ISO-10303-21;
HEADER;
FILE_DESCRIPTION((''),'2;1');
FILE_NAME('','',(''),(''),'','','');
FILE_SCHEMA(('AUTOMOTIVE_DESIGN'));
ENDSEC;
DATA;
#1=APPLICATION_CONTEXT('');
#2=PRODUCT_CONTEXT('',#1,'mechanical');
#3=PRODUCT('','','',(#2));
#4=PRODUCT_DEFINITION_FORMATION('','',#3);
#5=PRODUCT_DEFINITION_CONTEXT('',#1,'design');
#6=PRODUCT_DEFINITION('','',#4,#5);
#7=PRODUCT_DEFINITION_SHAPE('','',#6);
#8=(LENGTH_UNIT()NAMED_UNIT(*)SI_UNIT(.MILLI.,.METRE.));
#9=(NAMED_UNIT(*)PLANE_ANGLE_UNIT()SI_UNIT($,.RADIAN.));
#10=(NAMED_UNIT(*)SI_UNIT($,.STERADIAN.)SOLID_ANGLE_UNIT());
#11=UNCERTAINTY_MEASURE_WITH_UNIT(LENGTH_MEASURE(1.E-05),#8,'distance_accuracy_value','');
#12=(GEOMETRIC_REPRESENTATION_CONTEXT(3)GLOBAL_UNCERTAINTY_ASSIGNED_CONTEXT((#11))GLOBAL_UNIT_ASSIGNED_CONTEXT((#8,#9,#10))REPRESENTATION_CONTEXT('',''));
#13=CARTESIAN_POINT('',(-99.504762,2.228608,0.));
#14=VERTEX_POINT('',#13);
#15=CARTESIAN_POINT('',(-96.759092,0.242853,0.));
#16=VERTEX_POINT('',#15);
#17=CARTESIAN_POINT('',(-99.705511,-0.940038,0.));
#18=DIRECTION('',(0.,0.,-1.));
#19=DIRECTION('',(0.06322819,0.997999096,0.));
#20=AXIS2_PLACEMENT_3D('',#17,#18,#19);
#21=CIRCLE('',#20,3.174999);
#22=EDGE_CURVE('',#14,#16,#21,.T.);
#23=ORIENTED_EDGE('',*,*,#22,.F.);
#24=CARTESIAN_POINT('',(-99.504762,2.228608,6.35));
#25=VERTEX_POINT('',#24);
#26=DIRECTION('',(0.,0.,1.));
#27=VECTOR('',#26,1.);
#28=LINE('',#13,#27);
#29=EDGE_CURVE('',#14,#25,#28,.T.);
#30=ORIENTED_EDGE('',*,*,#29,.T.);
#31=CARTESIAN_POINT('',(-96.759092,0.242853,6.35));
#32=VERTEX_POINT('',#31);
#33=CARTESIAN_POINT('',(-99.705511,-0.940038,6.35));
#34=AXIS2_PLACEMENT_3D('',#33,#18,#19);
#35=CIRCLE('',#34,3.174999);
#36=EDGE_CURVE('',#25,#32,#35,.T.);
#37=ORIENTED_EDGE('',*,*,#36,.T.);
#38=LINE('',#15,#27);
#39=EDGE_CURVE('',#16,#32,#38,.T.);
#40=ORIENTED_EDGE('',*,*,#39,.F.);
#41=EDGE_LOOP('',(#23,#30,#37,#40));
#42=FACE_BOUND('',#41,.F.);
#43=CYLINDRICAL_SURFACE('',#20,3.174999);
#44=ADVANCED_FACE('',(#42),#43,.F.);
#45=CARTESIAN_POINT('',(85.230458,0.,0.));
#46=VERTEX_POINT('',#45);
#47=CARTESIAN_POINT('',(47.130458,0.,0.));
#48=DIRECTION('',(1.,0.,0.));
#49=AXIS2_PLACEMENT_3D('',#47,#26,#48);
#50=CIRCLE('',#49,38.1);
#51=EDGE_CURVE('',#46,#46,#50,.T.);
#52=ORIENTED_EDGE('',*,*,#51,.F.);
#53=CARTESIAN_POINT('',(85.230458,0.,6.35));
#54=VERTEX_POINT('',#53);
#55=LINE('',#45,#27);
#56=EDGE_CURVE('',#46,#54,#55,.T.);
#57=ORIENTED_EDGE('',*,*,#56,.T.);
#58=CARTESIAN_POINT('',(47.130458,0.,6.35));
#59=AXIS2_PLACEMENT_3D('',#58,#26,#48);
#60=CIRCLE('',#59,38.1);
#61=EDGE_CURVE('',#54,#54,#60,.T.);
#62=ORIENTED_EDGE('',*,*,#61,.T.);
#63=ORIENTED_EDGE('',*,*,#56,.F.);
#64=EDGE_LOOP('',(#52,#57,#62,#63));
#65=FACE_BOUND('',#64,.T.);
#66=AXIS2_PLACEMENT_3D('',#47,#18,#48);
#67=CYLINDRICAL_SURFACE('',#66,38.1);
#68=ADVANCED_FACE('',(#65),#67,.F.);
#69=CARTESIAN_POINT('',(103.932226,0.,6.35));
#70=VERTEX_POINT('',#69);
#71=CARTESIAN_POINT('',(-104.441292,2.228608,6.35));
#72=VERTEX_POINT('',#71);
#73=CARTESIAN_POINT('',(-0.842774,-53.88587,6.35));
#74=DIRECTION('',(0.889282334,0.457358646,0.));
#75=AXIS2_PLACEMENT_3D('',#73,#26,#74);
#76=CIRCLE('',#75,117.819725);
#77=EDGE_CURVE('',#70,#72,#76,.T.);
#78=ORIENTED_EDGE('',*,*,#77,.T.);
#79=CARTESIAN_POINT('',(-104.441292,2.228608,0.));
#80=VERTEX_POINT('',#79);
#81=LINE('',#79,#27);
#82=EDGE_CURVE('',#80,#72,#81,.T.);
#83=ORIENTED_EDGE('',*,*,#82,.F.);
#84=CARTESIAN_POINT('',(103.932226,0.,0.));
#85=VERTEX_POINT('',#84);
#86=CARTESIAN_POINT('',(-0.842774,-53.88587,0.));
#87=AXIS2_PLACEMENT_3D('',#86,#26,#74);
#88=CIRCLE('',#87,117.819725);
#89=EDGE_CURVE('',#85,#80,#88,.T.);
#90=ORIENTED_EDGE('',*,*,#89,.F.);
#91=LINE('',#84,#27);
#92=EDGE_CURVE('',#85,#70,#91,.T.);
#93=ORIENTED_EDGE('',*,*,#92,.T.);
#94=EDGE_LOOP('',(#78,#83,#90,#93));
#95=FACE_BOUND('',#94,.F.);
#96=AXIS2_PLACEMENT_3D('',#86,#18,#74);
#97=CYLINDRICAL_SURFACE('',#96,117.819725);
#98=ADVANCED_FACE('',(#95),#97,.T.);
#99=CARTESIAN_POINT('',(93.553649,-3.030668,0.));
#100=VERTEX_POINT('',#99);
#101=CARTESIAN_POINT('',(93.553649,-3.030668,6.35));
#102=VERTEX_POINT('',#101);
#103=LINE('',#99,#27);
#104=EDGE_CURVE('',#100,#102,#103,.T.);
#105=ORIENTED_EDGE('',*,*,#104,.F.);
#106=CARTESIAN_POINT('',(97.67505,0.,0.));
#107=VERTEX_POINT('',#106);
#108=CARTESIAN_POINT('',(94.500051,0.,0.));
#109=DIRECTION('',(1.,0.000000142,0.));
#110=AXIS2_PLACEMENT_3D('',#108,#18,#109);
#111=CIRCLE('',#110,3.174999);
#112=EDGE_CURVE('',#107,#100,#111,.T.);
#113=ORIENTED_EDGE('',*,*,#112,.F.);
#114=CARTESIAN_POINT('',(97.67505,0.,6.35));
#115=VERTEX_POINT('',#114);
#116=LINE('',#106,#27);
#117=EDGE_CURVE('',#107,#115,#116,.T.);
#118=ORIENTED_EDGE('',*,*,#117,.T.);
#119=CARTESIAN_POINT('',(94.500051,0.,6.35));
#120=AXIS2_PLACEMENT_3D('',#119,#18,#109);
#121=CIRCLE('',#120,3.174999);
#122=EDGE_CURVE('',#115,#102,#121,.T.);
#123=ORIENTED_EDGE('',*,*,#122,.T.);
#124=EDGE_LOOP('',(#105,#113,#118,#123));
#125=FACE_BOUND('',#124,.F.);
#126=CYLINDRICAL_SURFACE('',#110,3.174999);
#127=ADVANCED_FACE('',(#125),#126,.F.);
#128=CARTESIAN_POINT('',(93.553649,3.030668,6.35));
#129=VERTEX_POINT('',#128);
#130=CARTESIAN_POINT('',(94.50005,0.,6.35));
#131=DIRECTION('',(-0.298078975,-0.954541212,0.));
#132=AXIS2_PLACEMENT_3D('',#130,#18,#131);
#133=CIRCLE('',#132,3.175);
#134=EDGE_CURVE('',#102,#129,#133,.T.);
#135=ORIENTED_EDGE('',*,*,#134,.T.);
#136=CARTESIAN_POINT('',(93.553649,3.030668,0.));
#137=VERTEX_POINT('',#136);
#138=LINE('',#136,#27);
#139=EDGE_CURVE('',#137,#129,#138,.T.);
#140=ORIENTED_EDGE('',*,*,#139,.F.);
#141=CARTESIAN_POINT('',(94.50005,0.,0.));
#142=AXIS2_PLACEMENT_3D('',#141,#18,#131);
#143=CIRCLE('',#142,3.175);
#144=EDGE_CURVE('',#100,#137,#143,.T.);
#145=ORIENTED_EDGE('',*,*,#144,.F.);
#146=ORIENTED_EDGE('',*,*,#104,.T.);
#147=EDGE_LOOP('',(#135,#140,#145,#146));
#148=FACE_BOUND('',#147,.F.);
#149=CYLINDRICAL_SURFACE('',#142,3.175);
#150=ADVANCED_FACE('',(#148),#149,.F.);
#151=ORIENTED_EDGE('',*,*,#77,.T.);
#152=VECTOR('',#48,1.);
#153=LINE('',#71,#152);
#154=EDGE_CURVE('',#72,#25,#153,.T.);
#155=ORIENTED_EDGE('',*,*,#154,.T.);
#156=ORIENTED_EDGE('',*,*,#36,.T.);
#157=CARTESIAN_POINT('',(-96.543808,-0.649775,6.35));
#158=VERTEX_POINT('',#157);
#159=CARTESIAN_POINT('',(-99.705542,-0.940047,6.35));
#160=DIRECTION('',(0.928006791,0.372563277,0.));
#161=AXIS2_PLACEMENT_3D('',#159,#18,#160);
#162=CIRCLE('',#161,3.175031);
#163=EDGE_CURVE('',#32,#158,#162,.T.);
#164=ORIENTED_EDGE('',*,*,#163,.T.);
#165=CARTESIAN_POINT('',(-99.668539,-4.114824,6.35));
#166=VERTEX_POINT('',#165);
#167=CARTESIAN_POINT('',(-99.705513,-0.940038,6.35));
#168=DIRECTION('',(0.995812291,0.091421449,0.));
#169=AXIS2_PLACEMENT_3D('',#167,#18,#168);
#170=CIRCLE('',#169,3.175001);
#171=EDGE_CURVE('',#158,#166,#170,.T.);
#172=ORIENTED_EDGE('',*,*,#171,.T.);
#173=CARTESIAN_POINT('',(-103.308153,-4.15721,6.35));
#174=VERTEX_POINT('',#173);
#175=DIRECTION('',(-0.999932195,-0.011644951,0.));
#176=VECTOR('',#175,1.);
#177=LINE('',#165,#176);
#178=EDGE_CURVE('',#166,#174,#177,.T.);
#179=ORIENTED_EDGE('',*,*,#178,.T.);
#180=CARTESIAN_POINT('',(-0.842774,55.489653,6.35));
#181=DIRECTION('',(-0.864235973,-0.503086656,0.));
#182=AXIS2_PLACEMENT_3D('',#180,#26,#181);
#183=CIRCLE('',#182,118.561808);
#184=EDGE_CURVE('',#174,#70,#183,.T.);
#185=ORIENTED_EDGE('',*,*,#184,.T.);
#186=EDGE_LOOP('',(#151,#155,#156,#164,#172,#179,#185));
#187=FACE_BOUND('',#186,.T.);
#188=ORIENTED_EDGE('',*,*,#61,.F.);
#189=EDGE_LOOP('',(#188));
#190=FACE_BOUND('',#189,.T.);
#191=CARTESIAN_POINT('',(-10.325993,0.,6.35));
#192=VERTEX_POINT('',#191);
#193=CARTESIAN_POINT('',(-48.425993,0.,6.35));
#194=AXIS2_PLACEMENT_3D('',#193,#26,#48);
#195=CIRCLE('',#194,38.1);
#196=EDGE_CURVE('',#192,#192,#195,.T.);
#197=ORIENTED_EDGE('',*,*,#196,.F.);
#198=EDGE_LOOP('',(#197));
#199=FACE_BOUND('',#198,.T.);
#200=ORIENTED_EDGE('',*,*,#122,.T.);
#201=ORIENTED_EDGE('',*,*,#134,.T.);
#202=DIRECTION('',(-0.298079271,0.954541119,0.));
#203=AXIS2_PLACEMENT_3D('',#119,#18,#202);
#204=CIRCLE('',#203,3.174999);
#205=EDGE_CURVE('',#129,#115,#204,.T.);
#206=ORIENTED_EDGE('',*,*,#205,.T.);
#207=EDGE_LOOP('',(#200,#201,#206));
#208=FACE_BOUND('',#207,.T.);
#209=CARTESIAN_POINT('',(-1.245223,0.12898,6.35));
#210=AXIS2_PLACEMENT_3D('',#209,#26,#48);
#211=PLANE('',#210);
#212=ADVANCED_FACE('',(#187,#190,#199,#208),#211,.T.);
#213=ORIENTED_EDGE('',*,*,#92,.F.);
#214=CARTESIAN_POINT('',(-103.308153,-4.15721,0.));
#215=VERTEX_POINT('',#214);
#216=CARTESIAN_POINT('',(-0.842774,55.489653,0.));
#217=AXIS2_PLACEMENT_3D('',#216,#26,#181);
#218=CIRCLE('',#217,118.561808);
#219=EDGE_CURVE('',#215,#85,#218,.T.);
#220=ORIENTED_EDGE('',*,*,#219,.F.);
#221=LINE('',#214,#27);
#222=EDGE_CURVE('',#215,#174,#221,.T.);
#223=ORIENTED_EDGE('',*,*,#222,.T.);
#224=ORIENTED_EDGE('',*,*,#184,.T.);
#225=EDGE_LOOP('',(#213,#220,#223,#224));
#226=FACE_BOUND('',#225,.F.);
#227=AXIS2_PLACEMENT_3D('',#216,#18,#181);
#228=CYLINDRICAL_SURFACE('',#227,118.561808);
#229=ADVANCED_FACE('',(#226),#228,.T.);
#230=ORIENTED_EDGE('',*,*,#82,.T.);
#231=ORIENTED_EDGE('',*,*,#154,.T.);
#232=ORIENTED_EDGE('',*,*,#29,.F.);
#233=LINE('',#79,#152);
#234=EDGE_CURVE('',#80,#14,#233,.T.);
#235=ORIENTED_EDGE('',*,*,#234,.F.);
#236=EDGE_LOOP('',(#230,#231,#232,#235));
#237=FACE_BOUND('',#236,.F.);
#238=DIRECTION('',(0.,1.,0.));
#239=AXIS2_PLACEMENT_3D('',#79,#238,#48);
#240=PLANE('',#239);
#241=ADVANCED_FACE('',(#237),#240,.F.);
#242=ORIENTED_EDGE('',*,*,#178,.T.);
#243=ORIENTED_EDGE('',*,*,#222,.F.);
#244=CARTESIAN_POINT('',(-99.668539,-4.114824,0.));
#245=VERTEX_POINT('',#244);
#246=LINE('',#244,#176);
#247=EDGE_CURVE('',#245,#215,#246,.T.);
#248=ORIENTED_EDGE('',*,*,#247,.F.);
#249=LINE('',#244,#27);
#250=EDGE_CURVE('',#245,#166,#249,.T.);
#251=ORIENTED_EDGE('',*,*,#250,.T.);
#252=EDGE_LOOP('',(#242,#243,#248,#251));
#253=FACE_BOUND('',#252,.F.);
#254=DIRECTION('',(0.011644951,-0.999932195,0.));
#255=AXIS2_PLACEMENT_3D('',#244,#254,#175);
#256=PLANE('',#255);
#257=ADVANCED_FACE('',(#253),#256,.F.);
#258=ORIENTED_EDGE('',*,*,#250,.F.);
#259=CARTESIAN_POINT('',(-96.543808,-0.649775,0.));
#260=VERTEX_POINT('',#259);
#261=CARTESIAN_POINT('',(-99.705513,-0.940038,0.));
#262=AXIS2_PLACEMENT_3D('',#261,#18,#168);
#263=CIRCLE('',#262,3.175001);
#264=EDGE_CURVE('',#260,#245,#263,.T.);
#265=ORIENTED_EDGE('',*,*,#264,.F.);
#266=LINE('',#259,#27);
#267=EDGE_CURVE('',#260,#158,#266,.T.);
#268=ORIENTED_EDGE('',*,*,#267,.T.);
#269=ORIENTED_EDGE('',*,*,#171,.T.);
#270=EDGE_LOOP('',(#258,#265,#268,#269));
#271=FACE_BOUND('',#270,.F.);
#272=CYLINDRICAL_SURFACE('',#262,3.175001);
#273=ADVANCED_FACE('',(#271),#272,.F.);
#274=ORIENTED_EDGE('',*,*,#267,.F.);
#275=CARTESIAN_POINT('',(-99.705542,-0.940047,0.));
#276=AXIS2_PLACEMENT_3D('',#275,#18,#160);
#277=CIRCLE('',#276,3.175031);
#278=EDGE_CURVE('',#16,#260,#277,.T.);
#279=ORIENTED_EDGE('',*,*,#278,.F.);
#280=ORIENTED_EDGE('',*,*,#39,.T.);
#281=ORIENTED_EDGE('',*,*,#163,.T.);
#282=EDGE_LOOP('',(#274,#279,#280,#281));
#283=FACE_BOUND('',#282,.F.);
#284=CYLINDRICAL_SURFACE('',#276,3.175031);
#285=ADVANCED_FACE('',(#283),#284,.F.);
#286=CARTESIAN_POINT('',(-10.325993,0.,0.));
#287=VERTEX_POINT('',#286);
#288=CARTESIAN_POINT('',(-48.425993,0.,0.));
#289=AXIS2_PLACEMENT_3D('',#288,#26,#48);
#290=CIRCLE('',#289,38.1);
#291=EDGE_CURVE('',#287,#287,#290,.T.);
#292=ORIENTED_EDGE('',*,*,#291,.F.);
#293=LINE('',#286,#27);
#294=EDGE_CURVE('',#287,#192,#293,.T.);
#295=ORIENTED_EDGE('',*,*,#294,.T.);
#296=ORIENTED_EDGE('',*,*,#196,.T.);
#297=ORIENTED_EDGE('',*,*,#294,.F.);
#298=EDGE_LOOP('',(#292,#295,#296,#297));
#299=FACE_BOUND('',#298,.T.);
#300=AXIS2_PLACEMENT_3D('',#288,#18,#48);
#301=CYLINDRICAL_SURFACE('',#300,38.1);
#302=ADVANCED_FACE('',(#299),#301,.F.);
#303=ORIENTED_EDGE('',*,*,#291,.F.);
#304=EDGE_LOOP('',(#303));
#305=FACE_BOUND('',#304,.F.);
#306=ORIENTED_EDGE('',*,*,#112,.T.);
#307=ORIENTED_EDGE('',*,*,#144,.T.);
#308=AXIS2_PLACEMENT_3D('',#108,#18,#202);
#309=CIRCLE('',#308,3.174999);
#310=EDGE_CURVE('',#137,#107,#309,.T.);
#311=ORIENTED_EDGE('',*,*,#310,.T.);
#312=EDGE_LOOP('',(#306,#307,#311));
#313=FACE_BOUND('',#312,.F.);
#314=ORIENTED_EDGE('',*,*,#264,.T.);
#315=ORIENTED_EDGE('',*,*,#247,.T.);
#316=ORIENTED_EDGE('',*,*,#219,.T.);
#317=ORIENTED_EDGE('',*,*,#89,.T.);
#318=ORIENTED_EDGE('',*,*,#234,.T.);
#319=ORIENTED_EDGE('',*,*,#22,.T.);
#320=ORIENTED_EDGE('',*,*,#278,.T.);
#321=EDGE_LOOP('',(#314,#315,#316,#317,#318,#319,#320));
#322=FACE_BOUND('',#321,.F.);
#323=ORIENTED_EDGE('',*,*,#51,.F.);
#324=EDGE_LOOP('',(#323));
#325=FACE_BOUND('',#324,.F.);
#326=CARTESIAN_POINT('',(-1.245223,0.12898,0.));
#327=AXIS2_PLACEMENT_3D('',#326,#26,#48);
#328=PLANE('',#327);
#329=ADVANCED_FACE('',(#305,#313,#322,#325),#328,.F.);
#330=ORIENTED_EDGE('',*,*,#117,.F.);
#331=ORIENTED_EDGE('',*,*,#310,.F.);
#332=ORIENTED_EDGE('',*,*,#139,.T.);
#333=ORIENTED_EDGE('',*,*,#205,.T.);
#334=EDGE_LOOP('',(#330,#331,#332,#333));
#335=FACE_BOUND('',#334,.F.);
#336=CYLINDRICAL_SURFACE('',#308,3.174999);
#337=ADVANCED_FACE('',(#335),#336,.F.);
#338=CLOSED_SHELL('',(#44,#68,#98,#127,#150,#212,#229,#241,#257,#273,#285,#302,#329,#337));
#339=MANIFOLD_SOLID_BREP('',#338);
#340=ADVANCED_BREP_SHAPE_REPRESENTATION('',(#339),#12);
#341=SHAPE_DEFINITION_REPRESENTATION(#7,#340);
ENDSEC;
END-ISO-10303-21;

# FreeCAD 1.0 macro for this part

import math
import FreeCAD as App
import Part
import Sketcher
Q = App.Units.Quantity

doc = App.newDocument("Part")
body = doc.addObject("PartDesign::Body", "Body")

sketch1 = body.newObject("Sketcher::SketchObject", "Sketch")
sketch1.AttachmentSupport = (doc.getObject("XY_Plane"), [""])
sketch1.MapMode = "FlatFace"
sketch1.addGeometry([
    Part.ArcOfCircle(Part.Circle(App.Vector(-0.842774, 55.489653, 0), App.Vector(0, 0, 1), 118.561808), math.radians(-149.795578), math.radians(-27.906042)),
    Part.ArcOfCircle(Part.Circle(App.Vector(-0.842774, -53.88587, 0), App.Vector(0, 0, 1), 117.819725), math.radians(27.216797), math.radians(151.557664)),
    Part.LineSegment(App.Vector(-104.441292, 2.228608, 0), App.Vector(-99.504762, 2.228608, 0)),
    Part.ArcOfCircle(Part.Circle(App.Vector(-99.705511, -0.940038, 0), App.Vector(0, 0, 1), 3.174999), math.radians(21.87385), math.radians(86.374873)),
    Part.ArcOfCircle(Part.Circle(App.Vector(-99.705542, -0.940047, 0), App.Vector(0, 0, 1), 3.175031), math.radians(5.245495), math.radians(21.873788)),
    Part.ArcOfCircle(Part.Circle(App.Vector(-99.705513, -0.940038, 0), App.Vector(0, 0, 1), 3.175001), math.radians(-89.332753), math.radians(5.245387)),
    Part.LineSegment(App.Vector(-99.668539, -4.114824, 0), App.Vector(-103.308153, -4.15721, 0)),
    Part.Circle(App.Vector(-48.425993, 0, 0), App.Vector(0, 0, 1), 38.1),
    Part.Circle(App.Vector(47.130458, 0, 0), App.Vector(0, 0, 1), 38.1),
    Part.ArcOfCircle(Part.Circle(App.Vector(94.500051, 0, 0), App.Vector(0, 0, 1), 3.174999), math.radians(-0.000008), math.radians(107.342276)),
    Part.ArcOfCircle(Part.Circle(App.Vector(94.500051, 0, 0), App.Vector(0, 0, 1), 3.174999), math.radians(-107.342276), math.radians(0.000008)),
    Part.ArcOfCircle(Part.Circle(App.Vector(94.50005, 0, 0), App.Vector(0, 0, 1), 3.175), math.radians(107.342258), math.radians(252.657742)),
], False)
sketch1.addConstraint([
    Sketcher.Constraint("Coincident", 0, 2, 1, 1),
    Sketcher.Constraint("Coincident", 1, 2, 2, 1),
    Sketcher.Constraint("Coincident", 2, 2, 3, 2),
    Sketcher.Constraint("Coincident", 3, 1, 4, 2),
    Sketcher.Constraint("Coincident", 4, 1, 5, 2),
    Sketcher.Constraint("Coincident", 5, 1, 6, 1),
    Sketcher.Constraint("Coincident", 6, 2, 0, 1),
    Sketcher.Constraint("Coincident", 9, 1, 10, 2),
    Sketcher.Constraint("Coincident", 10, 1, 11, 2),
    Sketcher.Constraint("Coincident", 11, 1, 9, 2),
    Sketcher.Constraint("Horizontal", 2),
    Sketcher.Constraint("Coincident", 5, 3, 3, 3),
    Sketcher.Constraint("Coincident", 10, 3, 9, 3),
    Sketcher.Constraint("PointOnObject", 7, 3, -1),
    Sketcher.Constraint("PointOnObject", 8, 3, -1),
    Sketcher.Constraint("PointOnObject", 9, 3, -1),
    Sketcher.Constraint("PointOnObject", 0, 2, -1),
    Sketcher.Constraint("PointOnObject", 9, 1, -1),
    Sketcher.Constraint("Diameter", 7, Q("3 in")),
    Sketcher.Constraint("Diameter", 8, Q("3 in")),
    Sketcher.Constraint("Radius", 3, Q("0.125 in")),
    Sketcher.Constraint("Radius", 5, Q("0.125 in")),
    Sketcher.Constraint("Radius", 9, Q("0.125 in")),
    Sketcher.Constraint("Radius", 11, Q("0.125 in")),
    Sketcher.Constraint("Radius", 4, Q("3.175031 mm")),
    Sketcher.Constraint("DistanceX", 1, 3, 0, 2, Q("4.125 in")),
    Sketcher.Constraint("Radius", 0, Q("118.561808 mm")),
    Sketcher.Constraint("Radius", 1, Q("117.819725 mm")),
    Sketcher.Constraint("DistanceX", 2, 1, 2, 2, Q("4.93653 mm")),
    Sketcher.Constraint("DistanceY", 4, 3, 0, 3, Q("56.4297 mm")),
    Sketcher.Constraint("DistanceX", 1, 2, 7, 3, Q("56.015299 mm")),
    Sketcher.Constraint("DistanceY", 4, 3, 3, 1, Q("1.1829 mm")),
    Sketcher.Constraint("DistanceX", 1, 2, 3, 1, Q("7.6822 mm")),
    Sketcher.Constraint("DistanceX", 10, 1, 10, 3, Q("0.946402 mm")),
    Sketcher.Constraint("DistanceX", 11, 1, 9, 3, Q("0.946402 mm")),
    Sketcher.Constraint("Distance", 6, Q("3.639861 mm")),
    Sketcher.Constraint("DistanceX", 3, 3, -1, 1, Q("99.705511 mm")),
    Sketcher.Constraint("DistanceY", 3, 3, -1, 1, Q("0.940038 mm")),
    Sketcher.Constraint("DistanceX", -1, 1, 9, 3, Q("94.500051 mm")),
    Sketcher.Constraint("DistanceX", 4, 1, -1, 1, Q("96.543808 mm")),
    Sketcher.Constraint("DistanceX", 5, 1, -1, 1, Q("99.668539 mm")),
    Sketcher.Constraint("DistanceX", 1, 3, 8, 3, Q("47.973232 mm")),
])
pad1 = body.newObject("PartDesign::Pad", "Pad")
pad1.Profile = sketch1
pad1.Length = Q("0.25 in")

doc.recompute()
